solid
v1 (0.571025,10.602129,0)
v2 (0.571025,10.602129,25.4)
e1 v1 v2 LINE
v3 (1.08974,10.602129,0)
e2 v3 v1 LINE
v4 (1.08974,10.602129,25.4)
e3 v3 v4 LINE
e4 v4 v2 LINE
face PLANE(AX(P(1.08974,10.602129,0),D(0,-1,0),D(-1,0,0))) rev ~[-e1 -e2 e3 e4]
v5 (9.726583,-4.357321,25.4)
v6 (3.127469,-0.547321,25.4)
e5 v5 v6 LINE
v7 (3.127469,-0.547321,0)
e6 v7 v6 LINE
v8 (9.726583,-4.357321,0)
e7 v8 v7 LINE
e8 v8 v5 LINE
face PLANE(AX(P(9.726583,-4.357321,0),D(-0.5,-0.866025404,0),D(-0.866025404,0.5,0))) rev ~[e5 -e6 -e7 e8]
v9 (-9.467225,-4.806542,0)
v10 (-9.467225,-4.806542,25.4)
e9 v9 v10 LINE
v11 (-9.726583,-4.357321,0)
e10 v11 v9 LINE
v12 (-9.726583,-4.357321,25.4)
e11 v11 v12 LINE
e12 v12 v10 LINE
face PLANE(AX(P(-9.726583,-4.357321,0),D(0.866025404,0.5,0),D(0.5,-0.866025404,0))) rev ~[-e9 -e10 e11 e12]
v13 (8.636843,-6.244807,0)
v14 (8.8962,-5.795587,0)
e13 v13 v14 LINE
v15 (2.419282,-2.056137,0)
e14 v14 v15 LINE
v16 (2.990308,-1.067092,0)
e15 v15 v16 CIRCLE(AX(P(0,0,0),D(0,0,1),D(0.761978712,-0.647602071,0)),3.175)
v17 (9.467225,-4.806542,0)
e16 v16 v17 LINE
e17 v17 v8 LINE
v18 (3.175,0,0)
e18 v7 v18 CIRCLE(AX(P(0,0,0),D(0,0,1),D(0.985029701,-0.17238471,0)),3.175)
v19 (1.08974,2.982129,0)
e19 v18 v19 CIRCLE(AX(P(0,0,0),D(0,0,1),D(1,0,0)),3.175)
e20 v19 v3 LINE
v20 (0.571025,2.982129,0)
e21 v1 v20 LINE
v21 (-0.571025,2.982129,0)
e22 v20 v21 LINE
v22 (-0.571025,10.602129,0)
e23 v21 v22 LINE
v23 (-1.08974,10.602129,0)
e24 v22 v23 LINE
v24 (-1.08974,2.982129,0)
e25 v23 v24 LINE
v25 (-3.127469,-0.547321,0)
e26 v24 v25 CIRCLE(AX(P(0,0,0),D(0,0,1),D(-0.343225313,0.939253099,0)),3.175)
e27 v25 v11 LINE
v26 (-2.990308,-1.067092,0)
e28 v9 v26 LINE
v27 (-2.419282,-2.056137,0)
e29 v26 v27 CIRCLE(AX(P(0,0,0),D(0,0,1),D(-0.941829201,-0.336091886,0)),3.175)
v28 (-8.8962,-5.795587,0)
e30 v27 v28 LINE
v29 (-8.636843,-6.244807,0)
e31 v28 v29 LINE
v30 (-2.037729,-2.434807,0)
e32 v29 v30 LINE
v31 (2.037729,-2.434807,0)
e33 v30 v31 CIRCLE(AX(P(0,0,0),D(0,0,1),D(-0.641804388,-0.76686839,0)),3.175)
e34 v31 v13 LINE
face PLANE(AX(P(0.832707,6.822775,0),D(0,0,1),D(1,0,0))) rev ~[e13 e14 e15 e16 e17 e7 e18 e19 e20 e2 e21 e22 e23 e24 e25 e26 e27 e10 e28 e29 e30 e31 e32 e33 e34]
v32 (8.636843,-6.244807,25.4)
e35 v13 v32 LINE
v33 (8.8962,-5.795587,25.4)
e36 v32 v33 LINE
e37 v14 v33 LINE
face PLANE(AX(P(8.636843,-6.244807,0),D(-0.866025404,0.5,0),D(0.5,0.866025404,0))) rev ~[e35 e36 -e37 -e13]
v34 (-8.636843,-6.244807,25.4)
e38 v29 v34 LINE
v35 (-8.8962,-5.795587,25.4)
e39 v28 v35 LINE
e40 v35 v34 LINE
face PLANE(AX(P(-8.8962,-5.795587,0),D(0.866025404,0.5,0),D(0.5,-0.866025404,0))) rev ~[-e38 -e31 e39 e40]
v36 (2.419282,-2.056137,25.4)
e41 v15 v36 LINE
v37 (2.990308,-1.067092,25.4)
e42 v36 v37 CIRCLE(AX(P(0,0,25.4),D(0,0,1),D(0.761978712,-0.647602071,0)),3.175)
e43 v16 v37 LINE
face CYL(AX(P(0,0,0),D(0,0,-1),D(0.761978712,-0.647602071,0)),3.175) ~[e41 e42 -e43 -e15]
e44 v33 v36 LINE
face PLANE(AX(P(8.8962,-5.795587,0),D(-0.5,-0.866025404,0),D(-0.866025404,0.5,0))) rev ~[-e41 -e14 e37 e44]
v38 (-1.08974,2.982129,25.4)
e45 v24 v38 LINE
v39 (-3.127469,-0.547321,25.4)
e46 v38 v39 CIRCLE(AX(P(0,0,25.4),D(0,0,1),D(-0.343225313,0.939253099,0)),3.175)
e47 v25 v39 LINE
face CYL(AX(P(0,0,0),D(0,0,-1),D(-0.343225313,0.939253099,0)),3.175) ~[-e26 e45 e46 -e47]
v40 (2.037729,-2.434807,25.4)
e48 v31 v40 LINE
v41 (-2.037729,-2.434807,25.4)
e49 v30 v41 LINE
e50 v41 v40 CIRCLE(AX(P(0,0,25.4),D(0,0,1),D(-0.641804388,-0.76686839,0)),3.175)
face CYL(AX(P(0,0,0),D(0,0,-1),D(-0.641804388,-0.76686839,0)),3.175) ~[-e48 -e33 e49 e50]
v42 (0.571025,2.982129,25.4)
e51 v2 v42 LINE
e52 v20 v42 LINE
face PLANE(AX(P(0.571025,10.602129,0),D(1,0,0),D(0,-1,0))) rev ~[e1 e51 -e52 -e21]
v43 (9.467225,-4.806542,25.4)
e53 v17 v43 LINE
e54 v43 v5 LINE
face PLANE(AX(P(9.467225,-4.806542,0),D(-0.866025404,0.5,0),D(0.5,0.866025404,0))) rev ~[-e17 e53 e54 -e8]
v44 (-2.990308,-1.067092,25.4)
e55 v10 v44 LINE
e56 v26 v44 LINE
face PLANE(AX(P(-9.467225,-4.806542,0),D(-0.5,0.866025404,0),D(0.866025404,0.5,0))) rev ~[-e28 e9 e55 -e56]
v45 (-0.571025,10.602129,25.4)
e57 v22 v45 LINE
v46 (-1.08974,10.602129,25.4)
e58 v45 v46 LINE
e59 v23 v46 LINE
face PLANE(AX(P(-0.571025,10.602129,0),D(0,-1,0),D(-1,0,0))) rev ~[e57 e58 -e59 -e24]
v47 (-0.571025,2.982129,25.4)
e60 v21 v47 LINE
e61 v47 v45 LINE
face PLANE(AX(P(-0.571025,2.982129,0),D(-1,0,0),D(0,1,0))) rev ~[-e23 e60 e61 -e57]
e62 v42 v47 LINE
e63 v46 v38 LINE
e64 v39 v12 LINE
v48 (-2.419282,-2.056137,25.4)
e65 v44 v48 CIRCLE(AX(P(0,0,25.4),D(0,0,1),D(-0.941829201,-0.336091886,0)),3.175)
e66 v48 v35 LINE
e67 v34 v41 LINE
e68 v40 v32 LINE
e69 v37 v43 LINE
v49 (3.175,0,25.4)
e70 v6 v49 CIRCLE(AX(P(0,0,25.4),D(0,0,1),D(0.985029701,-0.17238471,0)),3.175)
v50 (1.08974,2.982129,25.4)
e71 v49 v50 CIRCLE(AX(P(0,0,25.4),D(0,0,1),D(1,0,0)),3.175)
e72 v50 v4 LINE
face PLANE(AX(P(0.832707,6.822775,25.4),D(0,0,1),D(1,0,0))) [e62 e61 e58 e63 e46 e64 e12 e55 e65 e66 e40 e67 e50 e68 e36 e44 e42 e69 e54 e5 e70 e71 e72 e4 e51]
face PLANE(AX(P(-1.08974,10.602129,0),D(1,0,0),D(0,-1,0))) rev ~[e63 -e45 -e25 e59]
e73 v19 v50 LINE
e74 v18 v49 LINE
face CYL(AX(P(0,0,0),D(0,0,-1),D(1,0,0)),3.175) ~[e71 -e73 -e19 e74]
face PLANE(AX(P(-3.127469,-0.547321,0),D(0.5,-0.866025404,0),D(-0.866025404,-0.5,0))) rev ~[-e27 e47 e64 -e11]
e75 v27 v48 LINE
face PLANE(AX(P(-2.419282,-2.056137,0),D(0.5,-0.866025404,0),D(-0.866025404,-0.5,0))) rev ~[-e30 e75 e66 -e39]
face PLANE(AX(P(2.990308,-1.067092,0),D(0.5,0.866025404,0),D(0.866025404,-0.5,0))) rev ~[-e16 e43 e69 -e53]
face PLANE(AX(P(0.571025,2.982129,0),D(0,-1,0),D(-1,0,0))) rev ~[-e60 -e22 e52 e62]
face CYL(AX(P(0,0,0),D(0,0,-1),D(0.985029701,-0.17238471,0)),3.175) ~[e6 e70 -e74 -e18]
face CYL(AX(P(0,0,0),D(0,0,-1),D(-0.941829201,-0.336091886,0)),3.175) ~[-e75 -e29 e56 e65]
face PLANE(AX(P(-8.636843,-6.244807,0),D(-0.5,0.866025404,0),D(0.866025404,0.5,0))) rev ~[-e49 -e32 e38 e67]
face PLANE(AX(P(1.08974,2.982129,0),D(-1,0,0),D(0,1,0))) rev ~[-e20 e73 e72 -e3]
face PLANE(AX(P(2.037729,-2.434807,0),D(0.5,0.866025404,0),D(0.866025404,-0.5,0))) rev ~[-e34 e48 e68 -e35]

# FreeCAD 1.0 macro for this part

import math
import FreeCAD as App
import Part
import Sketcher

V = App.Vector
Q = App.Units.Quantity

doc = App.newDocument("Part")
body = doc.addObject("PartDesign::Body", "Body")

sketch1 = body.newObject("Sketcher::SketchObject", "Sketch")
sketch1.AttachmentSupport = (doc.getObject("XY_Plane"), [""])
sketch1.MapMode = "FlatFace"
sketch1.addGeometry([
    Part.LineSegment(V(1.1, 3, 0), V(1.1, 10.6, 0)),
    Part.LineSegment(V(1.1, 10.6, 0), V(0.6, 10.6, 0)),
    Part.LineSegment(V(0.6, 10.6, 0), V(0.6, 3, 0)),
    Part.LineSegment(V(0.6, 3, 0), V(-0.6, 3, 0)),
    Part.LineSegment(V(-0.6, 3, 0), V(-0.6, 10.6, 0)),
    Part.LineSegment(V(-0.6, 10.6, 0), V(-1.1, 10.6, 0)),
    Part.LineSegment(V(-1.1, 10.6, 0), V(-1.1, 3, 0)),
    Part.ArcOfCircle(Part.Circle(V(0, 0, 0), V(0, 0, 1), 3.2), math.radians(110), math.radians(190)),
    Part.LineSegment(V(-3.1, -0.5, 0), V(-9.7, -4.4, 0)),
    Part.LineSegment(V(-9.7, -4.4, 0), V(-9.5, -4.8, 0)),
    Part.LineSegment(V(-9.5, -4.8, 0), V(-3, -1.1, 0)),
    Part.ArcOfCircle(Part.Circle(V(0, 0, 0), V(0, 0, 1), 3.2), math.radians(-160), math.radians(-140)),
    Part.LineSegment(V(-2.4, -2.1, 0), V(-8.9, -5.8, 0)),
    Part.LineSegment(V(-8.9, -5.8, 0), V(-8.6, -6.2, 0)),
    Part.LineSegment(V(-8.6, -6.2, 0), V(-2, -2.4, 0)),
    Part.ArcOfCircle(Part.Circle(V(0, 0, 0), V(0, 0, 1), 3.2), math.radians(-130), math.radians(-50)),
    Part.LineSegment(V(2, -2.4, 0), V(8.6, -6.2, 0)),
    Part.LineSegment(V(8.6, -6.2, 0), V(8.9, -5.8, 0)),
    Part.LineSegment(V(8.9, -5.8, 0), V(2.4, -2.1, 0)),
    Part.ArcOfCircle(Part.Circle(V(0, 0, 0), V(0, 0, 1), 3.2), math.radians(-40), math.radians(-20)),
    Part.LineSegment(V(3, -1.1, 0), V(9.5, -4.8, 0)),
    Part.LineSegment(V(9.5, -4.8, 0), V(9.7, -4.4, 0)),
    Part.LineSegment(V(9.7, -4.4, 0), V(3.1, -0.5, 0)),
    Part.ArcOfCircle(Part.Circle(V(0, 0, 0), V(0, 0, 1), 3.2), math.radians(-9.93), math.radians(0)),
    Part.ArcOfCircle(Part.Circle(V(0, 0, 0), V(0, 0, 1), 3.2), math.radians(0), math.radians(70)),
], False)
sketch1.addConstraint([
    Sketcher.Constraint("Coincident", 0, 2, 1, 1),
    Sketcher.Constraint("Coincident", 1, 2, 2, 1),
    Sketcher.Constraint("Coincident", 2, 2, 3, 1),
    Sketcher.Constraint("Coincident", 3, 2, 4, 1),
    Sketcher.Constraint("Coincident", 4, 2, 5, 1),
    Sketcher.Constraint("Coincident", 5, 2, 6, 1),
    Sketcher.Constraint("Coincident", 6, 2, 7, 1),
    Sketcher.Constraint("Coincident", 7, 2, 8, 1),
    Sketcher.Constraint("Coincident", 8, 2, 9, 1),
    Sketcher.Constraint("Coincident", 9, 2, 10, 1),
    Sketcher.Constraint("Coincident", 10, 2, 11, 1),
    Sketcher.Constraint("Coincident", 11, 2, 12, 1),
    Sketcher.Constraint("Coincident", 12, 2, 13, 1),
    Sketcher.Constraint("Coincident", 13, 2, 14, 1),
    Sketcher.Constraint("Coincident", 14, 2, 15, 1),
    Sketcher.Constraint("Coincident", 15, 2, 16, 1),
    Sketcher.Constraint("Coincident", 16, 2, 17, 1),
    Sketcher.Constraint("Coincident", 17, 2, 18, 1),
    Sketcher.Constraint("Coincident", 18, 2, 19, 1),
    Sketcher.Constraint("Coincident", 19, 2, 20, 1),
    Sketcher.Constraint("Coincident", 20, 2, 21, 1),
    Sketcher.Constraint("Coincident", 21, 2, 22, 1),
    Sketcher.Constraint("Coincident", 22, 2, 23, 1),
    Sketcher.Constraint("Tangent", 23, 2, 24, 1),
    Sketcher.Constraint("Coincident", 24, 2, 0, 1),
    Sketcher.Constraint("Vertical", 0),
    Sketcher.Constraint("Horizontal", 1),
    Sketcher.Constraint("Vertical", 2),
    Sketcher.Constraint("Horizontal", 3),
    Sketcher.Constraint("Vertical", 4),
    Sketcher.Constraint("Horizontal", 5),
    Sketcher.Constraint("Vertical", 6),
    Sketcher.Constraint("Coincident", 7, 3, -1, 1),
    Sketcher.Constraint("Coincident", 11, 3, -1, 1),
    Sketcher.Constraint("Coincident", 15, 3, -1, 1),
    Sketcher.Constraint("Coincident", 19, 3, -1, 1),
    Sketcher.Constraint("Coincident", 23, 3, -1, 1),
    Sketcher.Constraint("Equal", 7, 11),
    Sketcher.Constraint("Equal", 11, 15),
    Sketcher.Constraint("Equal", 15, 19),
    Sketcher.Constraint("Equal", 19, 23),
    Sketcher.Constraint("Equal", 23, 24),
    Sketcher.Constraint("Symmetric", 1, 2, 4, 2, -2),
    Sketcher.Constraint("Symmetric", 13, 2, 16, 2, -2),
    Sketcher.Constraint("Symmetric", 12, 2, 17, 2, -2),
    Sketcher.Constraint("Symmetric", 9, 2, 20, 2, -2),
    Sketcher.Constraint("Symmetric", 8, 2, 21, 2, -2),
    Sketcher.Constraint("PointOnObject", 23, 2, -1),
    Sketcher.Constraint("Perpendicular", 8, 9),
    Sketcher.Constraint("Perpendicular", 9, 10),
    Sketcher.Constraint("Parallel", 10, 12),
    Sketcher.Constraint("Perpendicular", 12, 13),
    Sketcher.Constraint("Perpendicular", 13, 14),
    Sketcher.Constraint("Perpendicular", 16, 17),
    Sketcher.Constraint("Perpendicular", 17, 18),
    Sketcher.Constraint("Parallel", 18, 20),
    Sketcher.Constraint("Perpendicular", 21, 22),
    Sketcher.Constraint("Horizontal", 3, 2, 6, 2),
    Sketcher.Constraint("Horizontal", 6, 2, 24, 2),
    Sketcher.Constraint("Equal", 10, 12),
    Sketcher.Constraint("Equal", 9, 13),
    Sketcher.Constraint("Equal", 8, 14),
    Sketcher.Constraint("DistanceY", 0, 1, 0, 2, Q("0.3 in")),
    Sketcher.Constraint("Angle", 8, Q("-150 deg")),
    Sketcher.Constraint("Radius", 7, Q("0.125 in")),
    Sketcher.Constraint("Distance", 8, Q("0.3 in")),
    Sketcher.Constraint("DistanceX", 7, 2, 10, 2, Q("0.0054001 in")),
    Sketcher.Constraint("DistanceX", 15, 2, 20, 2, Q("0.2924999 in")),
    Sketcher.Constraint("DistanceX", 3, 2, 3, 1, Q("1.142051 mm")),
    Sketcher.Constraint("DistanceX", 1, 2, 1, 1, Q("0.518715 mm")),
])
pad1 = body.newObject("PartDesign::Pad", "Pad")
pad1.Profile = sketch1
pad1.Length = Q("1 in")

doc.recompute()
